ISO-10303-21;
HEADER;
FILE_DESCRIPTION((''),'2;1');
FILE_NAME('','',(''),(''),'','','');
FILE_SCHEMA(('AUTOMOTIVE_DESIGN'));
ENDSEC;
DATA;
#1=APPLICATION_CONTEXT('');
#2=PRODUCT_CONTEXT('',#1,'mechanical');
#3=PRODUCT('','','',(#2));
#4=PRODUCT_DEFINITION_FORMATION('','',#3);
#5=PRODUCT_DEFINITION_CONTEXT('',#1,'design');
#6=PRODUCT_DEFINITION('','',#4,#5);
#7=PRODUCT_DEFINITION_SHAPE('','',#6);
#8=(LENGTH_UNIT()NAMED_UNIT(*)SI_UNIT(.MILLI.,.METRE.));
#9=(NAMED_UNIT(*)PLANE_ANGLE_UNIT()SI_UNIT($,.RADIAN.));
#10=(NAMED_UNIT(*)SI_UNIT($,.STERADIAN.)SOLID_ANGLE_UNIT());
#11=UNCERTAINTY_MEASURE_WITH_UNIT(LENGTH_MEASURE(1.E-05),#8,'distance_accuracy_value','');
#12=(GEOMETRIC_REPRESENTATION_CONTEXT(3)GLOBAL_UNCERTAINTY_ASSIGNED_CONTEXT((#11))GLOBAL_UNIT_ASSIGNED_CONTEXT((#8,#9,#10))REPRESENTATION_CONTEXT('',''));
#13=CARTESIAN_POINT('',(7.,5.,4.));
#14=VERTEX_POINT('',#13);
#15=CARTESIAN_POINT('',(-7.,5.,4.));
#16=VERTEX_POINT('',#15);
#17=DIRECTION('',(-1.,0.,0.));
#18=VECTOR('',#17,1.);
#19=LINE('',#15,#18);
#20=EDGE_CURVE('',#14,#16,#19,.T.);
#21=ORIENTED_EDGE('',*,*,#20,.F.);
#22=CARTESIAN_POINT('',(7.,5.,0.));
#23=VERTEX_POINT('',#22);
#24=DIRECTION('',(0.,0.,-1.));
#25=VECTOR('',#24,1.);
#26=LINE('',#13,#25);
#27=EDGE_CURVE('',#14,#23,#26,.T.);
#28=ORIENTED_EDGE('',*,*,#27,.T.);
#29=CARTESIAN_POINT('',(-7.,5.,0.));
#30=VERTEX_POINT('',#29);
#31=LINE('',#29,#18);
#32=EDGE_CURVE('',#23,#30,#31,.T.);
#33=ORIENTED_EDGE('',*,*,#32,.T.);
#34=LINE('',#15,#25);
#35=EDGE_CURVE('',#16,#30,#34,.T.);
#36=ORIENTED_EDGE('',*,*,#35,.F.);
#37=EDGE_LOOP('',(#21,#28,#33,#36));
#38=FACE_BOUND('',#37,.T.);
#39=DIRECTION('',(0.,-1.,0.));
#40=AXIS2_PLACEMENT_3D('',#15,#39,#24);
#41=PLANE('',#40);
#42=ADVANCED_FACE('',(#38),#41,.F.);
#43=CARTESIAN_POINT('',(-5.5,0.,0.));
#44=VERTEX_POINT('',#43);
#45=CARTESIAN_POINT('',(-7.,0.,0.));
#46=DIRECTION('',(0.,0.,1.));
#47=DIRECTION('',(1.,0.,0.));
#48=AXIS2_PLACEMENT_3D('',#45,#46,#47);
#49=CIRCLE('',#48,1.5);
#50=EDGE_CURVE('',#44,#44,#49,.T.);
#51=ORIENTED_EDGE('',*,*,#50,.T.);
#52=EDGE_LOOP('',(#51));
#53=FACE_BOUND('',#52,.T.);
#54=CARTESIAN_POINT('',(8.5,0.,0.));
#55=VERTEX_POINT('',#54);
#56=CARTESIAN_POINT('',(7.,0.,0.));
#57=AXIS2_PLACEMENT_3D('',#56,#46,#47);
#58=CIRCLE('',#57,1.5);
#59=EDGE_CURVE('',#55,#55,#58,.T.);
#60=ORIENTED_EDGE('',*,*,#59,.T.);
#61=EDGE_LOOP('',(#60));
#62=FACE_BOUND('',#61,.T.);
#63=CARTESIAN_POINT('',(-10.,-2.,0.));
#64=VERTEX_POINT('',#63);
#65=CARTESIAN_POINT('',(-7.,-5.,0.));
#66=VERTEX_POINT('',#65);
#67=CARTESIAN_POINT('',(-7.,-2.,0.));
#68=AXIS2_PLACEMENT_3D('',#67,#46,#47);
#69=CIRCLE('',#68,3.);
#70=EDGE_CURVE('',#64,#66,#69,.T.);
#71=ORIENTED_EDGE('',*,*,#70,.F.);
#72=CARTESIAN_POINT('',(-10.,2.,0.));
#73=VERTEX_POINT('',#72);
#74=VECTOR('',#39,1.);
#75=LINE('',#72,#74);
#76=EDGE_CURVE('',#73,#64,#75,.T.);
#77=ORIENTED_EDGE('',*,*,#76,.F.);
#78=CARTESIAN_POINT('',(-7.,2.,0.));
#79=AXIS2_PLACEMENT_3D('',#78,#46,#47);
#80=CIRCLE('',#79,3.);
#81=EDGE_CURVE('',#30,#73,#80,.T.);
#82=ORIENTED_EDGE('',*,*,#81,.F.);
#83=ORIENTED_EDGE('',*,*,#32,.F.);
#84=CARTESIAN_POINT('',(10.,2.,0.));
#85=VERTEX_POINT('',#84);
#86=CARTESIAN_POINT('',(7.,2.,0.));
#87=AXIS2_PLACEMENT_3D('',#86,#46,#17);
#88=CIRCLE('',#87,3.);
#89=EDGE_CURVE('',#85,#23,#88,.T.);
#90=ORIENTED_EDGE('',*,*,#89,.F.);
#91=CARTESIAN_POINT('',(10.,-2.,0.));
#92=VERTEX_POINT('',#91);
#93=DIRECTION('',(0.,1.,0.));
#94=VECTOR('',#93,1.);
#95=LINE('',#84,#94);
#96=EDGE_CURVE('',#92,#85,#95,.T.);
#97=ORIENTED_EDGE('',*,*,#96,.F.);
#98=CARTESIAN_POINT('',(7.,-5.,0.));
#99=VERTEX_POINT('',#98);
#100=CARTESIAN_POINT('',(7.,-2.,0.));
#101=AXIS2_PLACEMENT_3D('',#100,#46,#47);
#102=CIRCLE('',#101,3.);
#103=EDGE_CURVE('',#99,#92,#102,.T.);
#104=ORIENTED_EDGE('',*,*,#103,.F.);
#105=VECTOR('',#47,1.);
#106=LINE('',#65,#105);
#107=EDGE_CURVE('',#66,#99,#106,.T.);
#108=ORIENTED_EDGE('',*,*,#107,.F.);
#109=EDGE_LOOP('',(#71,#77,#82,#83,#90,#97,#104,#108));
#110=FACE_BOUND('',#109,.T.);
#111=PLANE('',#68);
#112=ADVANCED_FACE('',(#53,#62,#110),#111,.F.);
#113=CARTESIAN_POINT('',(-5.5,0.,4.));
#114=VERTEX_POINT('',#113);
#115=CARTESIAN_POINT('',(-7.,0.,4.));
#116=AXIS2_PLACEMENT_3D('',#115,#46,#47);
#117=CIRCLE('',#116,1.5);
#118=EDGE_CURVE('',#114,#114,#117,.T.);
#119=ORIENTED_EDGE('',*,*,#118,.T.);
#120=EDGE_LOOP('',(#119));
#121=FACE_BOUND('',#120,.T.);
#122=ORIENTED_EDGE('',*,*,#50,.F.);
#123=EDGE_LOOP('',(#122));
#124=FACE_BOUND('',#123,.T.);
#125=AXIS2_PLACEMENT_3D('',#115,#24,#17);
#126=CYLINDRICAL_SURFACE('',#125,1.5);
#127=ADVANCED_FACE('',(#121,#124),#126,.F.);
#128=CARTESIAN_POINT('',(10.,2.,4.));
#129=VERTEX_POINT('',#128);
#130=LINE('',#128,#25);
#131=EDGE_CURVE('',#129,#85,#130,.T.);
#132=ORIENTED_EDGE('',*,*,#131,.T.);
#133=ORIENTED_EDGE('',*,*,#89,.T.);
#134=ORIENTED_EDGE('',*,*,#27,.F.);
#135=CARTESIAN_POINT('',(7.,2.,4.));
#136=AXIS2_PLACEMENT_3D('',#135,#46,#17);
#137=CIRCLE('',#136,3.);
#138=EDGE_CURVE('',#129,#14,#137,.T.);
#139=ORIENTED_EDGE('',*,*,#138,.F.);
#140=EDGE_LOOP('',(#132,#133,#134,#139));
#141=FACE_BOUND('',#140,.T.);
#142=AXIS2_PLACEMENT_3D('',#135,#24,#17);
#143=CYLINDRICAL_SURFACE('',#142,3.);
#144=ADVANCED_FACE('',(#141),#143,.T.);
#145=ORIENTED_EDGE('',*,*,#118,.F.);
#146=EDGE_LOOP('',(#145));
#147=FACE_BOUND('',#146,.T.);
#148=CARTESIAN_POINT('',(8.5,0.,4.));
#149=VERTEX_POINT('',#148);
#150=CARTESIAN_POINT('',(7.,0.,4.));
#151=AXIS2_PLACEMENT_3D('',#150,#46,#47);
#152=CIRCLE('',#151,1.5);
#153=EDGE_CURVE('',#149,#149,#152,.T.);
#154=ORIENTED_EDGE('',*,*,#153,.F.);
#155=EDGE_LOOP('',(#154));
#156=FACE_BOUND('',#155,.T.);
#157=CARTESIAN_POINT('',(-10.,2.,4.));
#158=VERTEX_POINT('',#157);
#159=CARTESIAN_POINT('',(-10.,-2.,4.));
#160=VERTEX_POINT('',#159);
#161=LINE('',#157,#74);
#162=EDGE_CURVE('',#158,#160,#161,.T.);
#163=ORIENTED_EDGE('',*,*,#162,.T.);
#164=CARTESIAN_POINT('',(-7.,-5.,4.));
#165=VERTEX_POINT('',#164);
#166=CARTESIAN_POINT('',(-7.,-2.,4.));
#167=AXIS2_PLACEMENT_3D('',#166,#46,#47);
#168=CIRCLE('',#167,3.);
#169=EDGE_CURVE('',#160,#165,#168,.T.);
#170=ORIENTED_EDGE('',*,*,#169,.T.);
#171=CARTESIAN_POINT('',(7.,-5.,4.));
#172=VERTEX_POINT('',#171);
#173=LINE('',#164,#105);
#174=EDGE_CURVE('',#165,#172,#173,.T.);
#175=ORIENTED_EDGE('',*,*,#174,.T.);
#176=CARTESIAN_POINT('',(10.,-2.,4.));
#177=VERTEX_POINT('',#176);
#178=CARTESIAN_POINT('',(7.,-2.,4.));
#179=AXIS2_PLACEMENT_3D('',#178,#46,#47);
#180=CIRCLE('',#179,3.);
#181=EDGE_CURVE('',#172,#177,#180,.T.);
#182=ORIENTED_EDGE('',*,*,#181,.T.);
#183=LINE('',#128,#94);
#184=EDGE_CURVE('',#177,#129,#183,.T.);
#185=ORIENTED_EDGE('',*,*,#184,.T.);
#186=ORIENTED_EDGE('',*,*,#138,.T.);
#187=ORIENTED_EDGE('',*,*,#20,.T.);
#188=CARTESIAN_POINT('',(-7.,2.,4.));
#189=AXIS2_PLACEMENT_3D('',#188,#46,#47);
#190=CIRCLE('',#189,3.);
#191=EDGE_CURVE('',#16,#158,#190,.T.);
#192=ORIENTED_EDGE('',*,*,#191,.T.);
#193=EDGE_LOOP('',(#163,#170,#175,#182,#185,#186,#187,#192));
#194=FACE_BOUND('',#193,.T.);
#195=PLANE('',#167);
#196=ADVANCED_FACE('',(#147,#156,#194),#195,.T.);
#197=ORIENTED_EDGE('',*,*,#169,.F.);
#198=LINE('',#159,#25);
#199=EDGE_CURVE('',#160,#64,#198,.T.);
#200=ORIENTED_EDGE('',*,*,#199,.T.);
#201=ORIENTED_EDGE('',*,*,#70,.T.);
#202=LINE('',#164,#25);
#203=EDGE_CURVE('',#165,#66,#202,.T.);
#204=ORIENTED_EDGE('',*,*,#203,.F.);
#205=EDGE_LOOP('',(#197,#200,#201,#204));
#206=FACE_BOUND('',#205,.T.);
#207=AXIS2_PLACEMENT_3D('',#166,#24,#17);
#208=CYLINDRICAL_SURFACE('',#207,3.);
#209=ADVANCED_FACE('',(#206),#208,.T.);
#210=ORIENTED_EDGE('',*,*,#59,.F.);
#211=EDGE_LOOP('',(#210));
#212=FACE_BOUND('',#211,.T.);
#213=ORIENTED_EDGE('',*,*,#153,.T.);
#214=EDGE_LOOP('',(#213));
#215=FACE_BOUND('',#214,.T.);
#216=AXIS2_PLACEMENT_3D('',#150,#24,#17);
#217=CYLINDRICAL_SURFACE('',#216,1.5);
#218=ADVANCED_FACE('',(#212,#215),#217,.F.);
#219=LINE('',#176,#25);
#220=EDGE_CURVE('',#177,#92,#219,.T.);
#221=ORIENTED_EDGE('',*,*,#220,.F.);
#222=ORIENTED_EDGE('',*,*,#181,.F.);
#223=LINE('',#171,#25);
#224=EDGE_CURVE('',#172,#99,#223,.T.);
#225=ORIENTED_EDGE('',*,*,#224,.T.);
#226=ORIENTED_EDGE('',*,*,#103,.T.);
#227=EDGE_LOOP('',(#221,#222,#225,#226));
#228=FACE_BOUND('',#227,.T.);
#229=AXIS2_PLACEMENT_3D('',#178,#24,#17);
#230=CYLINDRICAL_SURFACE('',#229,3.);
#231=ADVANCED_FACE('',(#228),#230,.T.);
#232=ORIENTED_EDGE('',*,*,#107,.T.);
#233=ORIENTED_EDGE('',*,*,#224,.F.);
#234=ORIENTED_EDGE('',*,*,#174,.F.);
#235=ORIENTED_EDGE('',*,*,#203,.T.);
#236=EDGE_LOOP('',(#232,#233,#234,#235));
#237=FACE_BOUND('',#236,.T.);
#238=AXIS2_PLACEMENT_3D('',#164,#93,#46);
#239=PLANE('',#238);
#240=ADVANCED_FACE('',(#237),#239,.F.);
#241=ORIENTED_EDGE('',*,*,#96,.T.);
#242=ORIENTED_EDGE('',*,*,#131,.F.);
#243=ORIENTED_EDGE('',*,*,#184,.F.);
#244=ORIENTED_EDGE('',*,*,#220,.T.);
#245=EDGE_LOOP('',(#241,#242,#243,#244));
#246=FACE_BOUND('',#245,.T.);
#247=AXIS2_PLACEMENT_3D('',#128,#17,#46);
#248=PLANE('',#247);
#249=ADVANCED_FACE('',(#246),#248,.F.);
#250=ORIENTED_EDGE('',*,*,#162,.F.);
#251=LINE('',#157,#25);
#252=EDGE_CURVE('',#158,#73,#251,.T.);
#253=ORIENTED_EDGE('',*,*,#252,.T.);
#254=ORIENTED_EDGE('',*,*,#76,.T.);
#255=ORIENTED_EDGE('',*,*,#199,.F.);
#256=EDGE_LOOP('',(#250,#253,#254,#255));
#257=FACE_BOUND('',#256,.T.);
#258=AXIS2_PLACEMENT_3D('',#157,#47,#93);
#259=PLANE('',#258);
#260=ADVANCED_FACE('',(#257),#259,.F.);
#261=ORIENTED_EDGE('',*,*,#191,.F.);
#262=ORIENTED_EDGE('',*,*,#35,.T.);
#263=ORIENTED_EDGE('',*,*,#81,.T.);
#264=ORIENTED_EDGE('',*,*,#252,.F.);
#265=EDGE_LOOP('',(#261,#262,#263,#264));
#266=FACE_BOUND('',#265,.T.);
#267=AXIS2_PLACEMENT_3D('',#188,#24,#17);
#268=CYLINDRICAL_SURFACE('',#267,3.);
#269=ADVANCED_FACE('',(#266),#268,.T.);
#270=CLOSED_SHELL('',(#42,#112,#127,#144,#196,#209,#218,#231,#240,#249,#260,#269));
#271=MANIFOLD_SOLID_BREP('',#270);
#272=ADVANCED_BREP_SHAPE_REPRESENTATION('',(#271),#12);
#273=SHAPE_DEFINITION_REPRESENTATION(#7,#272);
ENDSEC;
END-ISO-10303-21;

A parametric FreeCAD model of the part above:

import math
import FreeCAD as App
import Part
import Sketcher

V = App.Vector

doc = App.newDocument("Part")
params = doc.addObject("Spreadsheet::Sheet", "Params")
for row, (alias, value) in enumerate([
    ("sketch1_diameter", "3 mm"),
    ("sketch1_radius", "3 mm"),
    ("sketch1_width", "14 mm"),
    ("sketch1_height", "4 mm"),
    ("pad1_length", "4 mm"),
], start=1):
    params.set(f"A{row}", alias)
    params.set(f"B{row}", "=" + value)
    params.setAlias(f"B{row}", alias)

body = doc.addObject("PartDesign::Body", "Body")

sketch1 = body.newObject("Sketcher::SketchObject", "Sketch")
sketch1.AttachmentSupport = (doc.getObject("XY_Plane"), [""])
sketch1.MapMode = "FlatFace"
sketch1.addGeometry([
    Part.LineSegment(V(7, 5, 0), V(-7, 5, 0)),
    Part.ArcOfCircle(Part.Circle(V(-7, 2, 0), V(0, 0, 1), 3), math.radians(90), math.radians(180)),
    Part.LineSegment(V(-10, 2, 0), V(-10, -2, 0)),
    Part.ArcOfCircle(Part.Circle(V(-7, -2, 0), V(0, 0, 1), 3), math.radians(180), math.radians(270)),
    Part.LineSegment(V(-7, -5, 0), V(7, -5, 0)),
    Part.ArcOfCircle(Part.Circle(V(7, -2, 0), V(0, 0, 1), 3), math.radians(-90), math.radians(0)),
    Part.LineSegment(V(10, -2, 0), V(10, 2, 0)),
    Part.ArcOfCircle(Part.Circle(V(7, 2, 0), V(0, 0, 1), 3), math.radians(0), math.radians(90)),
    Part.Circle(V(7, 0, 0), V(0, 0, 1), 1.5),
    Part.Circle(V(-7, 0, 0), V(0, 0, 1), 1.5),
], False)
sketch1.addConstraint([
    Sketcher.Constraint("Tangent", 0, 2, 1, 1),
    Sketcher.Constraint("Tangent", 1, 2, 2, 1),
    Sketcher.Constraint("Tangent", 2, 2, 3, 1),
    Sketcher.Constraint("Tangent", 3, 2, 4, 1),
    Sketcher.Constraint("Tangent", 4, 2, 5, 1),
    Sketcher.Constraint("Tangent", 5, 2, 6, 1),
    Sketcher.Constraint("Tangent", 6, 2, 7, 1),
    Sketcher.Constraint("Tangent", 7, 2, 0, 1),
    Sketcher.Constraint("Horizontal", 0),
    Sketcher.Constraint("Vertical", 2),
    Sketcher.Constraint("Horizontal", 4),
    Sketcher.Constraint("Vertical", 6),
    Sketcher.Constraint("Equal", 1, 3),
    Sketcher.Constraint("Equal", 3, 5),
    Sketcher.Constraint("Equal", 5, 7),
    Sketcher.Constraint("Equal", 8, 9),
    Sketcher.Constraint("Symmetric", 1, 3, 5, 3, -1, 1),
    Sketcher.Constraint("Symmetric", 8, 3, 9, 3, -1, 1),
    Sketcher.Constraint("PointOnObject", 8, 3, -1),
    Sketcher.Constraint("Vertical", 7, 3, 8, 3),
    Sketcher.Constraint("Diameter", 8, 3.0),
    Sketcher.Constraint("Radius", 1, 3.0),
    Sketcher.Constraint("DistanceX", 0, 2, 0, 1, 14.0),
    Sketcher.Constraint("DistanceY", 2, 2, 2, 1, 4.0),
])
sketch1.setExpression("Constraints[20]", "Params.sketch1_diameter")
sketch1.setExpression("Constraints[21]", "Params.sketch1_radius")
sketch1.setExpression("Constraints[22]", "Params.sketch1_width")
sketch1.setExpression("Constraints[23]", "Params.sketch1_height")
pad1 = body.newObject("PartDesign::Pad", "Pad")
pad1.Profile = sketch1
pad1.setExpression("Length", "Params.pad1_length")

doc.recompute()
